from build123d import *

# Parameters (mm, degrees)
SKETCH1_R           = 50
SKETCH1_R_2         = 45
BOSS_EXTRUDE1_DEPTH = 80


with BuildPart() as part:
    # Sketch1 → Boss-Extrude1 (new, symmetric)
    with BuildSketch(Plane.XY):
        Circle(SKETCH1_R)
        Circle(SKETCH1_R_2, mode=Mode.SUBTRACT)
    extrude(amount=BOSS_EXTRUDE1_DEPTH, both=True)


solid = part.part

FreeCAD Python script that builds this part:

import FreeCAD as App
import Part
import Sketcher

V = App.Vector
Q = App.Units.Quantity

doc = App.newDocument("Part")
body = doc.addObject("PartDesign::Body", "Body")

# Sketch on XY plane
sketch1 = body.newObject("Sketcher::SketchObject", "Sketch")
sketch1.AttachmentSupport = (doc.getObject("XY_Plane"), [""])
sketch1.MapMode = "FlatFace"
sketch1.addGeometry([
    Part.Circle(V(0, 0, 0), V(0, 0, 1), 50),
    Part.Circle(V(0, 0, 0), V(0, 0, 1), 45),
], False)
sketch1.addConstraint([
    Sketcher.Constraint("Coincident", 0, 3, -1, 1),
    Sketcher.Constraint("Coincident", 1, 3, -1, 1),
    Sketcher.Constraint("Diameter", 0, Q("100 mm")),
    Sketcher.Constraint("Diameter", 1, Q("90 mm")),
])
pad1 = body.newObject("PartDesign::Pad", "Pad")
pad1.Profile = sketch1
pad1.Length = 160
pad1.Midplane = True

doc.recompute()
